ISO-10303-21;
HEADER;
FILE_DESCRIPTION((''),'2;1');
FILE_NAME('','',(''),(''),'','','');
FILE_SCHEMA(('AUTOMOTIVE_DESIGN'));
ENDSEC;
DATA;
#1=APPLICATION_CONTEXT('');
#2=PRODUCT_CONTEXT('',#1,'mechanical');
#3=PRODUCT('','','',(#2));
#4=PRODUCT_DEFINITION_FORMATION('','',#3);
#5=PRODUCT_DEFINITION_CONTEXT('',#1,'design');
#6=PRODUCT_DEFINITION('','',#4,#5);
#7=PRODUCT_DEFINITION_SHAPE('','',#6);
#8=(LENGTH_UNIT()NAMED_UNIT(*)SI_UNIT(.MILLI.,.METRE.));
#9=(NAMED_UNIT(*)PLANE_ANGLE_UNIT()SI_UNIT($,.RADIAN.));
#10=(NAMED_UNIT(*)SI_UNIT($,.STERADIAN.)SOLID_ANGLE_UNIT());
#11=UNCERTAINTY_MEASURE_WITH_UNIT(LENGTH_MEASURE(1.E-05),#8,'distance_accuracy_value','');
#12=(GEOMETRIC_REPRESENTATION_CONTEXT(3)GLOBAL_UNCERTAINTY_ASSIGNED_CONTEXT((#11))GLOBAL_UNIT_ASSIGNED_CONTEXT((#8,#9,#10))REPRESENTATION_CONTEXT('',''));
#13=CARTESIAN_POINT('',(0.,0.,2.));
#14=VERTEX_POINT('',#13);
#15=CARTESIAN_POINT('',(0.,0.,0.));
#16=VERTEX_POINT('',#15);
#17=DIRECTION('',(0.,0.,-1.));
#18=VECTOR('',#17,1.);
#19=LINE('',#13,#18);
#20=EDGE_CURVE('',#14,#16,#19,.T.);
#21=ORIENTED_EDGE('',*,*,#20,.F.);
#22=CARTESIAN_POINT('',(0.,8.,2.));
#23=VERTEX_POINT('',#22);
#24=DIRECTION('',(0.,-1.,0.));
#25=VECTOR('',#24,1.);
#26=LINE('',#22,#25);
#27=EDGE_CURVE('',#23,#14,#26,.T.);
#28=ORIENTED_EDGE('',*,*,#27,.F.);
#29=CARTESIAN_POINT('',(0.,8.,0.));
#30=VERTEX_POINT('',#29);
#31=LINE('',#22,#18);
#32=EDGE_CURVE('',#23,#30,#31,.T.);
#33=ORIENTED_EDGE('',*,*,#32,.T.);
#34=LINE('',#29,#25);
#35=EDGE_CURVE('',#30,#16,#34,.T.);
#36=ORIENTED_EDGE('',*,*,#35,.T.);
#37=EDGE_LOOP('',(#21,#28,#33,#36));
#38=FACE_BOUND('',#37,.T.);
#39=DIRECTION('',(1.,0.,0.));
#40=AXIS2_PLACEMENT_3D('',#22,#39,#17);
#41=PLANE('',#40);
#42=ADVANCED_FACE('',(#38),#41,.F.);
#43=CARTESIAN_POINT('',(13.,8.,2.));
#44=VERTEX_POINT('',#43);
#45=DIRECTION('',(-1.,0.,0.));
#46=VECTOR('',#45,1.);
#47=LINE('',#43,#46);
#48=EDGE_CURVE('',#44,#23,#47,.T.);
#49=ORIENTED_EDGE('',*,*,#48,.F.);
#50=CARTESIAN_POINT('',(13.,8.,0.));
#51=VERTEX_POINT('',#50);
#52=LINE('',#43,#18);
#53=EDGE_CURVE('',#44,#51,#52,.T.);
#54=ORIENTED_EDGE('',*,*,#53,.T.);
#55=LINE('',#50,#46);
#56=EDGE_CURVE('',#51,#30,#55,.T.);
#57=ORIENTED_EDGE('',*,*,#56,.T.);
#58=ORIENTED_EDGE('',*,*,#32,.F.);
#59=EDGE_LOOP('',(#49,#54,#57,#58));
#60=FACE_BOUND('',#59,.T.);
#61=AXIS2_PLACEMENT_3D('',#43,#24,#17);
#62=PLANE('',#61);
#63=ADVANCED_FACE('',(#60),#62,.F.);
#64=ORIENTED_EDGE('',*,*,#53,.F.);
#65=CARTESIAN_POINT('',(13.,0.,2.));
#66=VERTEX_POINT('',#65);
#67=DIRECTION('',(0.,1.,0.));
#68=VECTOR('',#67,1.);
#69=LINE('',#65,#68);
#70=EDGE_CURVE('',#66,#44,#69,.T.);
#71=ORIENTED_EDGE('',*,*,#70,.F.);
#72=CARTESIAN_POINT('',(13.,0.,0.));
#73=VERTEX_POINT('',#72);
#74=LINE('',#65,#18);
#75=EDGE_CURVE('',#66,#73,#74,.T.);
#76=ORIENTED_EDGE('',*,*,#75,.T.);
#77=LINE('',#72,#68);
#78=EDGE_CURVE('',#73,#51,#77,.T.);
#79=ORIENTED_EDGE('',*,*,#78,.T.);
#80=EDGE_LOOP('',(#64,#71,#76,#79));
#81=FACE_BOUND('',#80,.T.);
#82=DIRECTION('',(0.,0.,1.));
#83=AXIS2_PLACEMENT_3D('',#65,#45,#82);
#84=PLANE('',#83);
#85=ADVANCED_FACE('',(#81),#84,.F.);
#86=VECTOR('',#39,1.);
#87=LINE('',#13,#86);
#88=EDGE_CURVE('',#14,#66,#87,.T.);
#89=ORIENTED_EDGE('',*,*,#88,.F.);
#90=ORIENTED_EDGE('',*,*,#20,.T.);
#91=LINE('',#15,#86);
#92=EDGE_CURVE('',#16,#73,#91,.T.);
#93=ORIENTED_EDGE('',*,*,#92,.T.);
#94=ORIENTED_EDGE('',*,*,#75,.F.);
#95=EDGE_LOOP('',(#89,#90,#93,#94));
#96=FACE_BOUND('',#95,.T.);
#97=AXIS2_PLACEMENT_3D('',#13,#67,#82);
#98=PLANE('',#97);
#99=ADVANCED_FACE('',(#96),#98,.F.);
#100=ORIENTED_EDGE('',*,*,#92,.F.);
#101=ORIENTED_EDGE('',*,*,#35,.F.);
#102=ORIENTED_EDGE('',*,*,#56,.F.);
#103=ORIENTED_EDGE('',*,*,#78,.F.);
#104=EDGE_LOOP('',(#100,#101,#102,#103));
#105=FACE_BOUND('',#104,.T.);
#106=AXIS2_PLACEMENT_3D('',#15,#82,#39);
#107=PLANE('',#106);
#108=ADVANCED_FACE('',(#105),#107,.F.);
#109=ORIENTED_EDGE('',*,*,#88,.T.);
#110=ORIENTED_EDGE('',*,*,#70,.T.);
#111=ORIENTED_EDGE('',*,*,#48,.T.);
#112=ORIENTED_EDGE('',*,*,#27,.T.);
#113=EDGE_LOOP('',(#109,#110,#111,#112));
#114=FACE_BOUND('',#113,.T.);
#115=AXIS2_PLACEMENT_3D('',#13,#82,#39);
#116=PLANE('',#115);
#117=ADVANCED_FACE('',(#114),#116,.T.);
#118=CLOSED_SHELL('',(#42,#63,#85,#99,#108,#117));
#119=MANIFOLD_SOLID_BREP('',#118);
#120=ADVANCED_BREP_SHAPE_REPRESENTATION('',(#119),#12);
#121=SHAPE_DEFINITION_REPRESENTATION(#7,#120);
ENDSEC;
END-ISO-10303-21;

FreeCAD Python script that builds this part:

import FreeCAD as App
import Part
import Sketcher


def add_polygon(sketch, points):
    """Adds a closed chain of lines whose ends are joined by coincident constraints."""
    first, n = sketch.GeometryCount, len(points)
    for a, b in zip(points, points[1:] + points[:1]):
        sketch.addGeometry(Part.LineSegment(App.Vector(*a, 0), App.Vector(*b, 0)), False)
    for i in range(n):
        sketch.addConstraint(Sketcher.Constraint("Coincident", first + i, 2, first + (i + 1) % n, 1))

doc = App.newDocument("Part")
body = doc.addObject("PartDesign::Body", "Body")

# Sketch on XY plane
sketch1 = body.newObject("Sketcher::SketchObject", "Sketch")
sketch1.AttachmentSupport = (doc.getObject("XY_Plane"), [""])
sketch1.MapMode = "FlatFace"
add_polygon(sketch1, [(0, 8), (0, 0), (13, 0), (13, 8)])  # lines 0-3
sketch1.addConstraint(Sketcher.Constraint("Vertical", 0))
sketch1.addConstraint(Sketcher.Constraint("Horizontal", 1))
sketch1.addConstraint(Sketcher.Constraint("Vertical", 2))
sketch1.addConstraint(Sketcher.Constraint("Horizontal", 3))
sketch1.addConstraint(Sketcher.Constraint("Coincident", 0, 2, -1, 1))
sketch1.addConstraint(Sketcher.Constraint("DistanceX", 1, 1, 1, 2, 13.0))
sketch1.addConstraint(Sketcher.Constraint("DistanceY", 0, 2, 0, 1, 8.0))
pad1 = body.newObject("PartDesign::Pad", "Pad")
pad1.Profile = sketch1
pad1.Length = 2

doc.recompute()
